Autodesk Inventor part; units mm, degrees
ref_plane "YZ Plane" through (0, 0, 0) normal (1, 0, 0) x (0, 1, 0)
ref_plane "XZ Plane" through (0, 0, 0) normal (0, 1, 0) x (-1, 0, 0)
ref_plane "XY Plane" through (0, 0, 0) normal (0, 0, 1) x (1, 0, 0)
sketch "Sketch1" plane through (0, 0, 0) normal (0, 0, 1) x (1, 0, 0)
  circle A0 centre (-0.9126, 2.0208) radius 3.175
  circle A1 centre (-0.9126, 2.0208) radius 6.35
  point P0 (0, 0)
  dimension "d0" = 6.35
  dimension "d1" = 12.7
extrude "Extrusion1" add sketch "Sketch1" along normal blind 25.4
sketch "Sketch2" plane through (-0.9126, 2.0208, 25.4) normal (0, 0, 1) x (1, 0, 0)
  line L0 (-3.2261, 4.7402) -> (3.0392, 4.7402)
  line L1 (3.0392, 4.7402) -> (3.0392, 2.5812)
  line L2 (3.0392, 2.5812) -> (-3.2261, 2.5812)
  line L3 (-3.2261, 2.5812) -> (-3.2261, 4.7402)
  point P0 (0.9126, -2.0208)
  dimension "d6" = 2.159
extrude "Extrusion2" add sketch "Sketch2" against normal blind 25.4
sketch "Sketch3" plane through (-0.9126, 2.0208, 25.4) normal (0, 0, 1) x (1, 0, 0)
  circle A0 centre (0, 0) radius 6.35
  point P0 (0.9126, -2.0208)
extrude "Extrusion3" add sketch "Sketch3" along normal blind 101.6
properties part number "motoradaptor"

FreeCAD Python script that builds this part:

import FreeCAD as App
import Part
import Sketcher

V = App.Vector
Q = App.Units.Quantity


def add_polygon(sketch, points):
    """Adds a closed chain of lines whose ends are joined by coincident constraints."""
    first, n = sketch.GeometryCount, len(points)
    for a, b in zip(points, points[1:] + points[:1]):
        sketch.addGeometry(Part.LineSegment(App.Vector(*a, 0), App.Vector(*b, 0)), False)
    for i in range(n):
        sketch.addConstraint(Sketcher.Constraint("Coincident", first + i, 2, first + (i + 1) % n, 1))

doc = App.newDocument("Part")
body = doc.addObject("PartDesign::Body", "Body")

sketch1 = doc.addObject("Sketcher::SketchObject", "Sketch")
body.addObject(sketch1)
sketch1.AttachmentSupport = (doc.XY_Plane, [""])
sketch1.MapMode = "FlatFace"
sketch1.addGeometry([
    Part.Circle(V(-0.9, 2, 0), V(0, 0, 1), 6.3),
    Part.Circle(V(-0.9, 2, 0), V(0, 0, 1), 3.2),
], False)
sketch1.addConstraint([
    Sketcher.Constraint("Coincident", 1, 3, 0, 3),
    Sketcher.Constraint("Diameter", 0, Q("0.5 in")),
    Sketcher.Constraint("Diameter", 1, Q("0.25 in")),
    Sketcher.Constraint("DistanceX", 0, 3, -1, 1, 0.9126),
    Sketcher.Constraint("DistanceY", -1, 1, 0, 3, 2.0208),
])
pad1 = doc.addObject("PartDesign::Pad", "Pad")
body.addObject(pad1)
pad1.Profile = sketch1
pad1.Length = Q("1 in")

sketch2 = doc.addObject("Sketcher::SketchObject", "Sketch001")
body.addObject(sketch2)
sketch2.AttachmentSupport = (doc.XY_Plane, [""])
sketch2.MapMode = "FlatFace"
sketch2.AttachmentOffset = App.Placement(V(0, 0, 1 * 25.4), App.Rotation())
add_polygon(sketch2, [(2.1, 6.8), (-4.1, 6.8), (-4.1, 4.6), (2.1, 4.6)])
sketch2.addConstraint([
    Sketcher.Constraint("Horizontal", 0),
    Sketcher.Constraint("Vertical", 1),
    Sketcher.Constraint("Horizontal", 2),
    Sketcher.Constraint("Vertical", 3),
    Sketcher.Constraint("DistanceY", 1, 2, 1, 1, Q("0.085 in")),
    Sketcher.Constraint("DistanceX", 0, 2, 0, 1, 6.2653),
    Sketcher.Constraint("DistanceX", 0, 2, -1, 1, 4.1387),
    Sketcher.Constraint("DistanceY", -1, 1, 0, 2, 6.761),
])
pad2 = doc.addObject("PartDesign::Pad", "Pad001")
body.addObject(pad2)
pad2.Profile = sketch2
pad2.Length = Q("1 in")
pad2.Reversed = True

sketch3 = doc.addObject("Sketcher::SketchObject", "Sketch002")
body.addObject(sketch3)
sketch3.AttachmentSupport = (doc.XY_Plane, [""])
sketch3.MapMode = "FlatFace"
sketch3.AttachmentOffset = App.Placement(V(0, 0, 1 * 25.4), App.Rotation())
sketch3.addGeometry(Part.Circle(V(-1, 2, 0), V(0, 0, 1), 6), False)
sketch3.addConstraint([
    Sketcher.Constraint("Diameter", 0, Q("0.5 in")),
    Sketcher.Constraint("DistanceX", 0, 3, -1, 1, 0.9126),
    Sketcher.Constraint("DistanceY", -1, 1, 0, 3, 2.0208),
])
pad3 = doc.addObject("PartDesign::Pad", "Pad002")
body.addObject(pad3)
pad3.Profile = sketch3
pad3.Length = Q("4 in")

doc.recompute()
